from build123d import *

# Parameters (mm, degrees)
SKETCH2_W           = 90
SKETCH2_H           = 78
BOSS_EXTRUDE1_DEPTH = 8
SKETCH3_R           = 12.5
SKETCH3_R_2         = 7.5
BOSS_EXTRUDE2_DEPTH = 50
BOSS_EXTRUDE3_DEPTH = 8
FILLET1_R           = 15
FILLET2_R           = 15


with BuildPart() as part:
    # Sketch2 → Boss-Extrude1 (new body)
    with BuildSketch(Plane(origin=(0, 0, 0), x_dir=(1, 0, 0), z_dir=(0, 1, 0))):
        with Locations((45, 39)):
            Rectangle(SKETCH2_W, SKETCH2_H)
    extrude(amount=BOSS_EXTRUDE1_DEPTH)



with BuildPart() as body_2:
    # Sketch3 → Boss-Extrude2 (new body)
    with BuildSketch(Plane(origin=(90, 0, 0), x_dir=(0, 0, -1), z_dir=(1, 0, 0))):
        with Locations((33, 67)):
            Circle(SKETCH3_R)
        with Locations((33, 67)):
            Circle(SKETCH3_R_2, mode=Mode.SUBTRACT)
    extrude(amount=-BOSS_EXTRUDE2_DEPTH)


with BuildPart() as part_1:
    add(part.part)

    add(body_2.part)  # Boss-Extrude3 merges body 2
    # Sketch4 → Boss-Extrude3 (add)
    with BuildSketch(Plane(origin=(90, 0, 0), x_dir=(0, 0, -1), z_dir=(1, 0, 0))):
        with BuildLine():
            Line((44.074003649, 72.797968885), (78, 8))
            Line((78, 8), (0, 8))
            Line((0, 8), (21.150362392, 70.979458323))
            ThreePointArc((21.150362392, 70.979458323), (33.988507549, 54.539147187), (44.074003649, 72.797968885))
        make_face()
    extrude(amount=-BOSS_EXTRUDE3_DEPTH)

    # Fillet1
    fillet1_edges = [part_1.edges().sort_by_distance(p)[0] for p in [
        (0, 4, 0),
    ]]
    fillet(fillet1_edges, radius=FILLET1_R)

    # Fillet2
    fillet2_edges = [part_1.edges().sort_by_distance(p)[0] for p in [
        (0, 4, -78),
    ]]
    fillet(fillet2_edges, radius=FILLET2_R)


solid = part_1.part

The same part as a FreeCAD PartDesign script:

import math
import FreeCAD as App
import Part
import Sketcher
from FreeCAD import Vector
Q = App.Units.Quantity


def edges_at(feature, points):
    """Names of the edges that pass closest to the given points."""
    edges = feature.Shape.Edges
    near = lambda p: min(range(len(edges)), key=lambda i: edges[i].distToShape(Part.Vertex(*p))[0])
    return sorted({f"Edge{near(p) + 1}" for p in points})

doc = App.newDocument("Part")
body = doc.addObject("PartDesign::Body", "Body")

sketch1 = doc.addObject("Sketcher::SketchObject", "Sketch")
body.addObject(sketch1)
sketch1.AttachmentSupport = (doc.XZ_Plane, [""])
sketch1.MapMode = "FlatFace"
sketch1.addGeometry(Part.LineSegment(Vector(0, -78, 0), Vector(0, 0, 0)), False)
sketch1.addGeometry(Part.LineSegment(Vector(0, 0, 0), Vector(90, 0, 0)), False)
sketch1.addGeometry(Part.LineSegment(Vector(90, 0, 0), Vector(90, -78, 0)), False)
sketch1.addGeometry(Part.LineSegment(Vector(90, -78, 0), Vector(0, -78, 0)), False)
sketch1.addConstraint(Sketcher.Constraint("Coincident", 0, 2, 1, 1))
sketch1.addConstraint(Sketcher.Constraint("Coincident", 1, 2, 2, 1))
sketch1.addConstraint(Sketcher.Constraint("Coincident", 2, 2, 3, 1))
sketch1.addConstraint(Sketcher.Constraint("Coincident", 3, 2, 0, 1))
sketch1.addConstraint(Sketcher.Constraint("Vertical", 0))
sketch1.addConstraint(Sketcher.Constraint("Horizontal", 1))
sketch1.addConstraint(Sketcher.Constraint("Vertical", 2))
sketch1.addConstraint(Sketcher.Constraint("Horizontal", 3))
sketch1.addConstraint(Sketcher.Constraint("Coincident", 0, 2, -1, 1))
sketch1.addConstraint(Sketcher.Constraint("DistanceX", 1, 1, 1, 2, Q("90 mm")))
sketch1.addConstraint(Sketcher.Constraint("DistanceY", 0, 1, 0, 2, Q("78 mm")))
pad1 = doc.addObject("PartDesign::Pad", "Pad")
body.addObject(pad1)
pad1.Profile = sketch1
pad1.Length = 8
pad1.Reversed = True
body2 = doc.addObject("PartDesign::Body", "Body001")

sketch2 = doc.addObject("Sketcher::SketchObject", "Sketch001")
body2.addObject(sketch2)
sketch2.AttachmentSupport = (doc.getObject("YZ_Plane001"), [""])
sketch2.MapMode = "FlatFace"
sketch2.AttachmentOffset = App.Placement(Vector(0, 0, 90), App.Rotation())
sketch2.addGeometry(Part.Circle(Vector(67, -33, 0), Vector(0, 0, 1), 12.5), False)
sketch2.addGeometry(Part.Circle(Vector(67, -33, 0), Vector(0, 0, 1), 7.5), False)
sketch2.addConstraint(Sketcher.Constraint("Coincident", 1, 3, 0, 3))
sketch2.addConstraint(Sketcher.Constraint("Diameter", 0, Q("25 mm")))
sketch2.addConstraint(Sketcher.Constraint("Diameter", 1, Q("15 mm")))
sketch2.addConstraint(Sketcher.Constraint("DistanceX", -1, 1, 0, 3, Q("67 mm")))
sketch2.addConstraint(Sketcher.Constraint("DistanceY", 0, 3, -1, 1, Q("33 mm")))
pad2 = doc.addObject("PartDesign::Pad", "Pad001")
body2.addObject(pad2)
pad2.Profile = sketch2
pad2.Length = 50
pad2.Reversed = True
body.AllowCompound = True
doc.recompute()

boolean = doc.addObject("PartDesign::Boolean", "Boolean")
body.addObject(boolean)
boolean.Type = "Fuse"
boolean.addObjects([body2])

sketch3 = doc.addObject("Sketcher::SketchObject", "Sketch002")
body.addObject(sketch3)
sketch3.AttachmentSupport = (doc.YZ_Plane, [""])
sketch3.MapMode = "FlatFace"
sketch3.AttachmentOffset = App.Placement(Vector(0, 0, 90), App.Rotation())
sketch3.addGeometry(Part.LineSegment(Vector(8, -78, 0), Vector(72.797969, -44.074004, 0)), False)
sketch3.addGeometry(Part.ArcOfCircle(Part.Circle(Vector(67, -33, 0), Vector(0, 0, 1), 12.5), math.radians(71.436428), math.radians(297.635014)), False)
sketch3.addGeometry(Part.LineSegment(Vector(70.979458, -21.150362, 0), Vector(8, 0, 0)), False)
sketch3.addGeometry(Part.LineSegment(Vector(8, 0, 0), Vector(8, -78, 0)), False)
sketch3.addConstraint(Sketcher.Constraint("Tangent", 0, 2, 1, 2))
sketch3.addConstraint(Sketcher.Constraint("Tangent", 1, 1, 2, 1))
sketch3.addConstraint(Sketcher.Constraint("Coincident", 2, 2, 3, 1))
sketch3.addConstraint(Sketcher.Constraint("Coincident", 3, 2, 0, 1))
sketch3.addConstraint(Sketcher.Constraint("Vertical", 3))
sketch3.addConstraint(Sketcher.Constraint("PointOnObject", 2, 2, -1))
sketch3.addConstraint(Sketcher.Constraint("Radius", 1, Q("12.5 mm")))
sketch3.addConstraint(Sketcher.Constraint("DistanceY", 3, 2, 3, 1, Q("78 mm")))
sketch3.addConstraint(Sketcher.Constraint("DistanceX", -1, 1, 1, 3, Q("67 mm")))
sketch3.addConstraint(Sketcher.Constraint("DistanceY", 1, 3, -1, 1, Q("33 mm")))
sketch3.addConstraint(Sketcher.Constraint("DistanceX", -1, 1, 2, 2, Q("8 mm")))
pad3 = doc.addObject("PartDesign::Pad", "Pad002")
body.addObject(pad3)
pad3.Profile = sketch3
pad3.Length = 8
pad3.Reversed = True
doc.recompute()

fillet = doc.addObject("PartDesign::Fillet", "Fillet")
body.addObject(fillet)
fillet.Base = (pad3, edges_at(pad3, [(0, 4, 0)]))
fillet.Radius = 15
doc.recompute()

fillet2 = doc.addObject("PartDesign::Fillet", "Fillet001")
body.addObject(fillet2)
fillet2.Base = (fillet, edges_at(fillet, [(0, 4, -78)]))
fillet2.Radius = 15

doc.recompute()
